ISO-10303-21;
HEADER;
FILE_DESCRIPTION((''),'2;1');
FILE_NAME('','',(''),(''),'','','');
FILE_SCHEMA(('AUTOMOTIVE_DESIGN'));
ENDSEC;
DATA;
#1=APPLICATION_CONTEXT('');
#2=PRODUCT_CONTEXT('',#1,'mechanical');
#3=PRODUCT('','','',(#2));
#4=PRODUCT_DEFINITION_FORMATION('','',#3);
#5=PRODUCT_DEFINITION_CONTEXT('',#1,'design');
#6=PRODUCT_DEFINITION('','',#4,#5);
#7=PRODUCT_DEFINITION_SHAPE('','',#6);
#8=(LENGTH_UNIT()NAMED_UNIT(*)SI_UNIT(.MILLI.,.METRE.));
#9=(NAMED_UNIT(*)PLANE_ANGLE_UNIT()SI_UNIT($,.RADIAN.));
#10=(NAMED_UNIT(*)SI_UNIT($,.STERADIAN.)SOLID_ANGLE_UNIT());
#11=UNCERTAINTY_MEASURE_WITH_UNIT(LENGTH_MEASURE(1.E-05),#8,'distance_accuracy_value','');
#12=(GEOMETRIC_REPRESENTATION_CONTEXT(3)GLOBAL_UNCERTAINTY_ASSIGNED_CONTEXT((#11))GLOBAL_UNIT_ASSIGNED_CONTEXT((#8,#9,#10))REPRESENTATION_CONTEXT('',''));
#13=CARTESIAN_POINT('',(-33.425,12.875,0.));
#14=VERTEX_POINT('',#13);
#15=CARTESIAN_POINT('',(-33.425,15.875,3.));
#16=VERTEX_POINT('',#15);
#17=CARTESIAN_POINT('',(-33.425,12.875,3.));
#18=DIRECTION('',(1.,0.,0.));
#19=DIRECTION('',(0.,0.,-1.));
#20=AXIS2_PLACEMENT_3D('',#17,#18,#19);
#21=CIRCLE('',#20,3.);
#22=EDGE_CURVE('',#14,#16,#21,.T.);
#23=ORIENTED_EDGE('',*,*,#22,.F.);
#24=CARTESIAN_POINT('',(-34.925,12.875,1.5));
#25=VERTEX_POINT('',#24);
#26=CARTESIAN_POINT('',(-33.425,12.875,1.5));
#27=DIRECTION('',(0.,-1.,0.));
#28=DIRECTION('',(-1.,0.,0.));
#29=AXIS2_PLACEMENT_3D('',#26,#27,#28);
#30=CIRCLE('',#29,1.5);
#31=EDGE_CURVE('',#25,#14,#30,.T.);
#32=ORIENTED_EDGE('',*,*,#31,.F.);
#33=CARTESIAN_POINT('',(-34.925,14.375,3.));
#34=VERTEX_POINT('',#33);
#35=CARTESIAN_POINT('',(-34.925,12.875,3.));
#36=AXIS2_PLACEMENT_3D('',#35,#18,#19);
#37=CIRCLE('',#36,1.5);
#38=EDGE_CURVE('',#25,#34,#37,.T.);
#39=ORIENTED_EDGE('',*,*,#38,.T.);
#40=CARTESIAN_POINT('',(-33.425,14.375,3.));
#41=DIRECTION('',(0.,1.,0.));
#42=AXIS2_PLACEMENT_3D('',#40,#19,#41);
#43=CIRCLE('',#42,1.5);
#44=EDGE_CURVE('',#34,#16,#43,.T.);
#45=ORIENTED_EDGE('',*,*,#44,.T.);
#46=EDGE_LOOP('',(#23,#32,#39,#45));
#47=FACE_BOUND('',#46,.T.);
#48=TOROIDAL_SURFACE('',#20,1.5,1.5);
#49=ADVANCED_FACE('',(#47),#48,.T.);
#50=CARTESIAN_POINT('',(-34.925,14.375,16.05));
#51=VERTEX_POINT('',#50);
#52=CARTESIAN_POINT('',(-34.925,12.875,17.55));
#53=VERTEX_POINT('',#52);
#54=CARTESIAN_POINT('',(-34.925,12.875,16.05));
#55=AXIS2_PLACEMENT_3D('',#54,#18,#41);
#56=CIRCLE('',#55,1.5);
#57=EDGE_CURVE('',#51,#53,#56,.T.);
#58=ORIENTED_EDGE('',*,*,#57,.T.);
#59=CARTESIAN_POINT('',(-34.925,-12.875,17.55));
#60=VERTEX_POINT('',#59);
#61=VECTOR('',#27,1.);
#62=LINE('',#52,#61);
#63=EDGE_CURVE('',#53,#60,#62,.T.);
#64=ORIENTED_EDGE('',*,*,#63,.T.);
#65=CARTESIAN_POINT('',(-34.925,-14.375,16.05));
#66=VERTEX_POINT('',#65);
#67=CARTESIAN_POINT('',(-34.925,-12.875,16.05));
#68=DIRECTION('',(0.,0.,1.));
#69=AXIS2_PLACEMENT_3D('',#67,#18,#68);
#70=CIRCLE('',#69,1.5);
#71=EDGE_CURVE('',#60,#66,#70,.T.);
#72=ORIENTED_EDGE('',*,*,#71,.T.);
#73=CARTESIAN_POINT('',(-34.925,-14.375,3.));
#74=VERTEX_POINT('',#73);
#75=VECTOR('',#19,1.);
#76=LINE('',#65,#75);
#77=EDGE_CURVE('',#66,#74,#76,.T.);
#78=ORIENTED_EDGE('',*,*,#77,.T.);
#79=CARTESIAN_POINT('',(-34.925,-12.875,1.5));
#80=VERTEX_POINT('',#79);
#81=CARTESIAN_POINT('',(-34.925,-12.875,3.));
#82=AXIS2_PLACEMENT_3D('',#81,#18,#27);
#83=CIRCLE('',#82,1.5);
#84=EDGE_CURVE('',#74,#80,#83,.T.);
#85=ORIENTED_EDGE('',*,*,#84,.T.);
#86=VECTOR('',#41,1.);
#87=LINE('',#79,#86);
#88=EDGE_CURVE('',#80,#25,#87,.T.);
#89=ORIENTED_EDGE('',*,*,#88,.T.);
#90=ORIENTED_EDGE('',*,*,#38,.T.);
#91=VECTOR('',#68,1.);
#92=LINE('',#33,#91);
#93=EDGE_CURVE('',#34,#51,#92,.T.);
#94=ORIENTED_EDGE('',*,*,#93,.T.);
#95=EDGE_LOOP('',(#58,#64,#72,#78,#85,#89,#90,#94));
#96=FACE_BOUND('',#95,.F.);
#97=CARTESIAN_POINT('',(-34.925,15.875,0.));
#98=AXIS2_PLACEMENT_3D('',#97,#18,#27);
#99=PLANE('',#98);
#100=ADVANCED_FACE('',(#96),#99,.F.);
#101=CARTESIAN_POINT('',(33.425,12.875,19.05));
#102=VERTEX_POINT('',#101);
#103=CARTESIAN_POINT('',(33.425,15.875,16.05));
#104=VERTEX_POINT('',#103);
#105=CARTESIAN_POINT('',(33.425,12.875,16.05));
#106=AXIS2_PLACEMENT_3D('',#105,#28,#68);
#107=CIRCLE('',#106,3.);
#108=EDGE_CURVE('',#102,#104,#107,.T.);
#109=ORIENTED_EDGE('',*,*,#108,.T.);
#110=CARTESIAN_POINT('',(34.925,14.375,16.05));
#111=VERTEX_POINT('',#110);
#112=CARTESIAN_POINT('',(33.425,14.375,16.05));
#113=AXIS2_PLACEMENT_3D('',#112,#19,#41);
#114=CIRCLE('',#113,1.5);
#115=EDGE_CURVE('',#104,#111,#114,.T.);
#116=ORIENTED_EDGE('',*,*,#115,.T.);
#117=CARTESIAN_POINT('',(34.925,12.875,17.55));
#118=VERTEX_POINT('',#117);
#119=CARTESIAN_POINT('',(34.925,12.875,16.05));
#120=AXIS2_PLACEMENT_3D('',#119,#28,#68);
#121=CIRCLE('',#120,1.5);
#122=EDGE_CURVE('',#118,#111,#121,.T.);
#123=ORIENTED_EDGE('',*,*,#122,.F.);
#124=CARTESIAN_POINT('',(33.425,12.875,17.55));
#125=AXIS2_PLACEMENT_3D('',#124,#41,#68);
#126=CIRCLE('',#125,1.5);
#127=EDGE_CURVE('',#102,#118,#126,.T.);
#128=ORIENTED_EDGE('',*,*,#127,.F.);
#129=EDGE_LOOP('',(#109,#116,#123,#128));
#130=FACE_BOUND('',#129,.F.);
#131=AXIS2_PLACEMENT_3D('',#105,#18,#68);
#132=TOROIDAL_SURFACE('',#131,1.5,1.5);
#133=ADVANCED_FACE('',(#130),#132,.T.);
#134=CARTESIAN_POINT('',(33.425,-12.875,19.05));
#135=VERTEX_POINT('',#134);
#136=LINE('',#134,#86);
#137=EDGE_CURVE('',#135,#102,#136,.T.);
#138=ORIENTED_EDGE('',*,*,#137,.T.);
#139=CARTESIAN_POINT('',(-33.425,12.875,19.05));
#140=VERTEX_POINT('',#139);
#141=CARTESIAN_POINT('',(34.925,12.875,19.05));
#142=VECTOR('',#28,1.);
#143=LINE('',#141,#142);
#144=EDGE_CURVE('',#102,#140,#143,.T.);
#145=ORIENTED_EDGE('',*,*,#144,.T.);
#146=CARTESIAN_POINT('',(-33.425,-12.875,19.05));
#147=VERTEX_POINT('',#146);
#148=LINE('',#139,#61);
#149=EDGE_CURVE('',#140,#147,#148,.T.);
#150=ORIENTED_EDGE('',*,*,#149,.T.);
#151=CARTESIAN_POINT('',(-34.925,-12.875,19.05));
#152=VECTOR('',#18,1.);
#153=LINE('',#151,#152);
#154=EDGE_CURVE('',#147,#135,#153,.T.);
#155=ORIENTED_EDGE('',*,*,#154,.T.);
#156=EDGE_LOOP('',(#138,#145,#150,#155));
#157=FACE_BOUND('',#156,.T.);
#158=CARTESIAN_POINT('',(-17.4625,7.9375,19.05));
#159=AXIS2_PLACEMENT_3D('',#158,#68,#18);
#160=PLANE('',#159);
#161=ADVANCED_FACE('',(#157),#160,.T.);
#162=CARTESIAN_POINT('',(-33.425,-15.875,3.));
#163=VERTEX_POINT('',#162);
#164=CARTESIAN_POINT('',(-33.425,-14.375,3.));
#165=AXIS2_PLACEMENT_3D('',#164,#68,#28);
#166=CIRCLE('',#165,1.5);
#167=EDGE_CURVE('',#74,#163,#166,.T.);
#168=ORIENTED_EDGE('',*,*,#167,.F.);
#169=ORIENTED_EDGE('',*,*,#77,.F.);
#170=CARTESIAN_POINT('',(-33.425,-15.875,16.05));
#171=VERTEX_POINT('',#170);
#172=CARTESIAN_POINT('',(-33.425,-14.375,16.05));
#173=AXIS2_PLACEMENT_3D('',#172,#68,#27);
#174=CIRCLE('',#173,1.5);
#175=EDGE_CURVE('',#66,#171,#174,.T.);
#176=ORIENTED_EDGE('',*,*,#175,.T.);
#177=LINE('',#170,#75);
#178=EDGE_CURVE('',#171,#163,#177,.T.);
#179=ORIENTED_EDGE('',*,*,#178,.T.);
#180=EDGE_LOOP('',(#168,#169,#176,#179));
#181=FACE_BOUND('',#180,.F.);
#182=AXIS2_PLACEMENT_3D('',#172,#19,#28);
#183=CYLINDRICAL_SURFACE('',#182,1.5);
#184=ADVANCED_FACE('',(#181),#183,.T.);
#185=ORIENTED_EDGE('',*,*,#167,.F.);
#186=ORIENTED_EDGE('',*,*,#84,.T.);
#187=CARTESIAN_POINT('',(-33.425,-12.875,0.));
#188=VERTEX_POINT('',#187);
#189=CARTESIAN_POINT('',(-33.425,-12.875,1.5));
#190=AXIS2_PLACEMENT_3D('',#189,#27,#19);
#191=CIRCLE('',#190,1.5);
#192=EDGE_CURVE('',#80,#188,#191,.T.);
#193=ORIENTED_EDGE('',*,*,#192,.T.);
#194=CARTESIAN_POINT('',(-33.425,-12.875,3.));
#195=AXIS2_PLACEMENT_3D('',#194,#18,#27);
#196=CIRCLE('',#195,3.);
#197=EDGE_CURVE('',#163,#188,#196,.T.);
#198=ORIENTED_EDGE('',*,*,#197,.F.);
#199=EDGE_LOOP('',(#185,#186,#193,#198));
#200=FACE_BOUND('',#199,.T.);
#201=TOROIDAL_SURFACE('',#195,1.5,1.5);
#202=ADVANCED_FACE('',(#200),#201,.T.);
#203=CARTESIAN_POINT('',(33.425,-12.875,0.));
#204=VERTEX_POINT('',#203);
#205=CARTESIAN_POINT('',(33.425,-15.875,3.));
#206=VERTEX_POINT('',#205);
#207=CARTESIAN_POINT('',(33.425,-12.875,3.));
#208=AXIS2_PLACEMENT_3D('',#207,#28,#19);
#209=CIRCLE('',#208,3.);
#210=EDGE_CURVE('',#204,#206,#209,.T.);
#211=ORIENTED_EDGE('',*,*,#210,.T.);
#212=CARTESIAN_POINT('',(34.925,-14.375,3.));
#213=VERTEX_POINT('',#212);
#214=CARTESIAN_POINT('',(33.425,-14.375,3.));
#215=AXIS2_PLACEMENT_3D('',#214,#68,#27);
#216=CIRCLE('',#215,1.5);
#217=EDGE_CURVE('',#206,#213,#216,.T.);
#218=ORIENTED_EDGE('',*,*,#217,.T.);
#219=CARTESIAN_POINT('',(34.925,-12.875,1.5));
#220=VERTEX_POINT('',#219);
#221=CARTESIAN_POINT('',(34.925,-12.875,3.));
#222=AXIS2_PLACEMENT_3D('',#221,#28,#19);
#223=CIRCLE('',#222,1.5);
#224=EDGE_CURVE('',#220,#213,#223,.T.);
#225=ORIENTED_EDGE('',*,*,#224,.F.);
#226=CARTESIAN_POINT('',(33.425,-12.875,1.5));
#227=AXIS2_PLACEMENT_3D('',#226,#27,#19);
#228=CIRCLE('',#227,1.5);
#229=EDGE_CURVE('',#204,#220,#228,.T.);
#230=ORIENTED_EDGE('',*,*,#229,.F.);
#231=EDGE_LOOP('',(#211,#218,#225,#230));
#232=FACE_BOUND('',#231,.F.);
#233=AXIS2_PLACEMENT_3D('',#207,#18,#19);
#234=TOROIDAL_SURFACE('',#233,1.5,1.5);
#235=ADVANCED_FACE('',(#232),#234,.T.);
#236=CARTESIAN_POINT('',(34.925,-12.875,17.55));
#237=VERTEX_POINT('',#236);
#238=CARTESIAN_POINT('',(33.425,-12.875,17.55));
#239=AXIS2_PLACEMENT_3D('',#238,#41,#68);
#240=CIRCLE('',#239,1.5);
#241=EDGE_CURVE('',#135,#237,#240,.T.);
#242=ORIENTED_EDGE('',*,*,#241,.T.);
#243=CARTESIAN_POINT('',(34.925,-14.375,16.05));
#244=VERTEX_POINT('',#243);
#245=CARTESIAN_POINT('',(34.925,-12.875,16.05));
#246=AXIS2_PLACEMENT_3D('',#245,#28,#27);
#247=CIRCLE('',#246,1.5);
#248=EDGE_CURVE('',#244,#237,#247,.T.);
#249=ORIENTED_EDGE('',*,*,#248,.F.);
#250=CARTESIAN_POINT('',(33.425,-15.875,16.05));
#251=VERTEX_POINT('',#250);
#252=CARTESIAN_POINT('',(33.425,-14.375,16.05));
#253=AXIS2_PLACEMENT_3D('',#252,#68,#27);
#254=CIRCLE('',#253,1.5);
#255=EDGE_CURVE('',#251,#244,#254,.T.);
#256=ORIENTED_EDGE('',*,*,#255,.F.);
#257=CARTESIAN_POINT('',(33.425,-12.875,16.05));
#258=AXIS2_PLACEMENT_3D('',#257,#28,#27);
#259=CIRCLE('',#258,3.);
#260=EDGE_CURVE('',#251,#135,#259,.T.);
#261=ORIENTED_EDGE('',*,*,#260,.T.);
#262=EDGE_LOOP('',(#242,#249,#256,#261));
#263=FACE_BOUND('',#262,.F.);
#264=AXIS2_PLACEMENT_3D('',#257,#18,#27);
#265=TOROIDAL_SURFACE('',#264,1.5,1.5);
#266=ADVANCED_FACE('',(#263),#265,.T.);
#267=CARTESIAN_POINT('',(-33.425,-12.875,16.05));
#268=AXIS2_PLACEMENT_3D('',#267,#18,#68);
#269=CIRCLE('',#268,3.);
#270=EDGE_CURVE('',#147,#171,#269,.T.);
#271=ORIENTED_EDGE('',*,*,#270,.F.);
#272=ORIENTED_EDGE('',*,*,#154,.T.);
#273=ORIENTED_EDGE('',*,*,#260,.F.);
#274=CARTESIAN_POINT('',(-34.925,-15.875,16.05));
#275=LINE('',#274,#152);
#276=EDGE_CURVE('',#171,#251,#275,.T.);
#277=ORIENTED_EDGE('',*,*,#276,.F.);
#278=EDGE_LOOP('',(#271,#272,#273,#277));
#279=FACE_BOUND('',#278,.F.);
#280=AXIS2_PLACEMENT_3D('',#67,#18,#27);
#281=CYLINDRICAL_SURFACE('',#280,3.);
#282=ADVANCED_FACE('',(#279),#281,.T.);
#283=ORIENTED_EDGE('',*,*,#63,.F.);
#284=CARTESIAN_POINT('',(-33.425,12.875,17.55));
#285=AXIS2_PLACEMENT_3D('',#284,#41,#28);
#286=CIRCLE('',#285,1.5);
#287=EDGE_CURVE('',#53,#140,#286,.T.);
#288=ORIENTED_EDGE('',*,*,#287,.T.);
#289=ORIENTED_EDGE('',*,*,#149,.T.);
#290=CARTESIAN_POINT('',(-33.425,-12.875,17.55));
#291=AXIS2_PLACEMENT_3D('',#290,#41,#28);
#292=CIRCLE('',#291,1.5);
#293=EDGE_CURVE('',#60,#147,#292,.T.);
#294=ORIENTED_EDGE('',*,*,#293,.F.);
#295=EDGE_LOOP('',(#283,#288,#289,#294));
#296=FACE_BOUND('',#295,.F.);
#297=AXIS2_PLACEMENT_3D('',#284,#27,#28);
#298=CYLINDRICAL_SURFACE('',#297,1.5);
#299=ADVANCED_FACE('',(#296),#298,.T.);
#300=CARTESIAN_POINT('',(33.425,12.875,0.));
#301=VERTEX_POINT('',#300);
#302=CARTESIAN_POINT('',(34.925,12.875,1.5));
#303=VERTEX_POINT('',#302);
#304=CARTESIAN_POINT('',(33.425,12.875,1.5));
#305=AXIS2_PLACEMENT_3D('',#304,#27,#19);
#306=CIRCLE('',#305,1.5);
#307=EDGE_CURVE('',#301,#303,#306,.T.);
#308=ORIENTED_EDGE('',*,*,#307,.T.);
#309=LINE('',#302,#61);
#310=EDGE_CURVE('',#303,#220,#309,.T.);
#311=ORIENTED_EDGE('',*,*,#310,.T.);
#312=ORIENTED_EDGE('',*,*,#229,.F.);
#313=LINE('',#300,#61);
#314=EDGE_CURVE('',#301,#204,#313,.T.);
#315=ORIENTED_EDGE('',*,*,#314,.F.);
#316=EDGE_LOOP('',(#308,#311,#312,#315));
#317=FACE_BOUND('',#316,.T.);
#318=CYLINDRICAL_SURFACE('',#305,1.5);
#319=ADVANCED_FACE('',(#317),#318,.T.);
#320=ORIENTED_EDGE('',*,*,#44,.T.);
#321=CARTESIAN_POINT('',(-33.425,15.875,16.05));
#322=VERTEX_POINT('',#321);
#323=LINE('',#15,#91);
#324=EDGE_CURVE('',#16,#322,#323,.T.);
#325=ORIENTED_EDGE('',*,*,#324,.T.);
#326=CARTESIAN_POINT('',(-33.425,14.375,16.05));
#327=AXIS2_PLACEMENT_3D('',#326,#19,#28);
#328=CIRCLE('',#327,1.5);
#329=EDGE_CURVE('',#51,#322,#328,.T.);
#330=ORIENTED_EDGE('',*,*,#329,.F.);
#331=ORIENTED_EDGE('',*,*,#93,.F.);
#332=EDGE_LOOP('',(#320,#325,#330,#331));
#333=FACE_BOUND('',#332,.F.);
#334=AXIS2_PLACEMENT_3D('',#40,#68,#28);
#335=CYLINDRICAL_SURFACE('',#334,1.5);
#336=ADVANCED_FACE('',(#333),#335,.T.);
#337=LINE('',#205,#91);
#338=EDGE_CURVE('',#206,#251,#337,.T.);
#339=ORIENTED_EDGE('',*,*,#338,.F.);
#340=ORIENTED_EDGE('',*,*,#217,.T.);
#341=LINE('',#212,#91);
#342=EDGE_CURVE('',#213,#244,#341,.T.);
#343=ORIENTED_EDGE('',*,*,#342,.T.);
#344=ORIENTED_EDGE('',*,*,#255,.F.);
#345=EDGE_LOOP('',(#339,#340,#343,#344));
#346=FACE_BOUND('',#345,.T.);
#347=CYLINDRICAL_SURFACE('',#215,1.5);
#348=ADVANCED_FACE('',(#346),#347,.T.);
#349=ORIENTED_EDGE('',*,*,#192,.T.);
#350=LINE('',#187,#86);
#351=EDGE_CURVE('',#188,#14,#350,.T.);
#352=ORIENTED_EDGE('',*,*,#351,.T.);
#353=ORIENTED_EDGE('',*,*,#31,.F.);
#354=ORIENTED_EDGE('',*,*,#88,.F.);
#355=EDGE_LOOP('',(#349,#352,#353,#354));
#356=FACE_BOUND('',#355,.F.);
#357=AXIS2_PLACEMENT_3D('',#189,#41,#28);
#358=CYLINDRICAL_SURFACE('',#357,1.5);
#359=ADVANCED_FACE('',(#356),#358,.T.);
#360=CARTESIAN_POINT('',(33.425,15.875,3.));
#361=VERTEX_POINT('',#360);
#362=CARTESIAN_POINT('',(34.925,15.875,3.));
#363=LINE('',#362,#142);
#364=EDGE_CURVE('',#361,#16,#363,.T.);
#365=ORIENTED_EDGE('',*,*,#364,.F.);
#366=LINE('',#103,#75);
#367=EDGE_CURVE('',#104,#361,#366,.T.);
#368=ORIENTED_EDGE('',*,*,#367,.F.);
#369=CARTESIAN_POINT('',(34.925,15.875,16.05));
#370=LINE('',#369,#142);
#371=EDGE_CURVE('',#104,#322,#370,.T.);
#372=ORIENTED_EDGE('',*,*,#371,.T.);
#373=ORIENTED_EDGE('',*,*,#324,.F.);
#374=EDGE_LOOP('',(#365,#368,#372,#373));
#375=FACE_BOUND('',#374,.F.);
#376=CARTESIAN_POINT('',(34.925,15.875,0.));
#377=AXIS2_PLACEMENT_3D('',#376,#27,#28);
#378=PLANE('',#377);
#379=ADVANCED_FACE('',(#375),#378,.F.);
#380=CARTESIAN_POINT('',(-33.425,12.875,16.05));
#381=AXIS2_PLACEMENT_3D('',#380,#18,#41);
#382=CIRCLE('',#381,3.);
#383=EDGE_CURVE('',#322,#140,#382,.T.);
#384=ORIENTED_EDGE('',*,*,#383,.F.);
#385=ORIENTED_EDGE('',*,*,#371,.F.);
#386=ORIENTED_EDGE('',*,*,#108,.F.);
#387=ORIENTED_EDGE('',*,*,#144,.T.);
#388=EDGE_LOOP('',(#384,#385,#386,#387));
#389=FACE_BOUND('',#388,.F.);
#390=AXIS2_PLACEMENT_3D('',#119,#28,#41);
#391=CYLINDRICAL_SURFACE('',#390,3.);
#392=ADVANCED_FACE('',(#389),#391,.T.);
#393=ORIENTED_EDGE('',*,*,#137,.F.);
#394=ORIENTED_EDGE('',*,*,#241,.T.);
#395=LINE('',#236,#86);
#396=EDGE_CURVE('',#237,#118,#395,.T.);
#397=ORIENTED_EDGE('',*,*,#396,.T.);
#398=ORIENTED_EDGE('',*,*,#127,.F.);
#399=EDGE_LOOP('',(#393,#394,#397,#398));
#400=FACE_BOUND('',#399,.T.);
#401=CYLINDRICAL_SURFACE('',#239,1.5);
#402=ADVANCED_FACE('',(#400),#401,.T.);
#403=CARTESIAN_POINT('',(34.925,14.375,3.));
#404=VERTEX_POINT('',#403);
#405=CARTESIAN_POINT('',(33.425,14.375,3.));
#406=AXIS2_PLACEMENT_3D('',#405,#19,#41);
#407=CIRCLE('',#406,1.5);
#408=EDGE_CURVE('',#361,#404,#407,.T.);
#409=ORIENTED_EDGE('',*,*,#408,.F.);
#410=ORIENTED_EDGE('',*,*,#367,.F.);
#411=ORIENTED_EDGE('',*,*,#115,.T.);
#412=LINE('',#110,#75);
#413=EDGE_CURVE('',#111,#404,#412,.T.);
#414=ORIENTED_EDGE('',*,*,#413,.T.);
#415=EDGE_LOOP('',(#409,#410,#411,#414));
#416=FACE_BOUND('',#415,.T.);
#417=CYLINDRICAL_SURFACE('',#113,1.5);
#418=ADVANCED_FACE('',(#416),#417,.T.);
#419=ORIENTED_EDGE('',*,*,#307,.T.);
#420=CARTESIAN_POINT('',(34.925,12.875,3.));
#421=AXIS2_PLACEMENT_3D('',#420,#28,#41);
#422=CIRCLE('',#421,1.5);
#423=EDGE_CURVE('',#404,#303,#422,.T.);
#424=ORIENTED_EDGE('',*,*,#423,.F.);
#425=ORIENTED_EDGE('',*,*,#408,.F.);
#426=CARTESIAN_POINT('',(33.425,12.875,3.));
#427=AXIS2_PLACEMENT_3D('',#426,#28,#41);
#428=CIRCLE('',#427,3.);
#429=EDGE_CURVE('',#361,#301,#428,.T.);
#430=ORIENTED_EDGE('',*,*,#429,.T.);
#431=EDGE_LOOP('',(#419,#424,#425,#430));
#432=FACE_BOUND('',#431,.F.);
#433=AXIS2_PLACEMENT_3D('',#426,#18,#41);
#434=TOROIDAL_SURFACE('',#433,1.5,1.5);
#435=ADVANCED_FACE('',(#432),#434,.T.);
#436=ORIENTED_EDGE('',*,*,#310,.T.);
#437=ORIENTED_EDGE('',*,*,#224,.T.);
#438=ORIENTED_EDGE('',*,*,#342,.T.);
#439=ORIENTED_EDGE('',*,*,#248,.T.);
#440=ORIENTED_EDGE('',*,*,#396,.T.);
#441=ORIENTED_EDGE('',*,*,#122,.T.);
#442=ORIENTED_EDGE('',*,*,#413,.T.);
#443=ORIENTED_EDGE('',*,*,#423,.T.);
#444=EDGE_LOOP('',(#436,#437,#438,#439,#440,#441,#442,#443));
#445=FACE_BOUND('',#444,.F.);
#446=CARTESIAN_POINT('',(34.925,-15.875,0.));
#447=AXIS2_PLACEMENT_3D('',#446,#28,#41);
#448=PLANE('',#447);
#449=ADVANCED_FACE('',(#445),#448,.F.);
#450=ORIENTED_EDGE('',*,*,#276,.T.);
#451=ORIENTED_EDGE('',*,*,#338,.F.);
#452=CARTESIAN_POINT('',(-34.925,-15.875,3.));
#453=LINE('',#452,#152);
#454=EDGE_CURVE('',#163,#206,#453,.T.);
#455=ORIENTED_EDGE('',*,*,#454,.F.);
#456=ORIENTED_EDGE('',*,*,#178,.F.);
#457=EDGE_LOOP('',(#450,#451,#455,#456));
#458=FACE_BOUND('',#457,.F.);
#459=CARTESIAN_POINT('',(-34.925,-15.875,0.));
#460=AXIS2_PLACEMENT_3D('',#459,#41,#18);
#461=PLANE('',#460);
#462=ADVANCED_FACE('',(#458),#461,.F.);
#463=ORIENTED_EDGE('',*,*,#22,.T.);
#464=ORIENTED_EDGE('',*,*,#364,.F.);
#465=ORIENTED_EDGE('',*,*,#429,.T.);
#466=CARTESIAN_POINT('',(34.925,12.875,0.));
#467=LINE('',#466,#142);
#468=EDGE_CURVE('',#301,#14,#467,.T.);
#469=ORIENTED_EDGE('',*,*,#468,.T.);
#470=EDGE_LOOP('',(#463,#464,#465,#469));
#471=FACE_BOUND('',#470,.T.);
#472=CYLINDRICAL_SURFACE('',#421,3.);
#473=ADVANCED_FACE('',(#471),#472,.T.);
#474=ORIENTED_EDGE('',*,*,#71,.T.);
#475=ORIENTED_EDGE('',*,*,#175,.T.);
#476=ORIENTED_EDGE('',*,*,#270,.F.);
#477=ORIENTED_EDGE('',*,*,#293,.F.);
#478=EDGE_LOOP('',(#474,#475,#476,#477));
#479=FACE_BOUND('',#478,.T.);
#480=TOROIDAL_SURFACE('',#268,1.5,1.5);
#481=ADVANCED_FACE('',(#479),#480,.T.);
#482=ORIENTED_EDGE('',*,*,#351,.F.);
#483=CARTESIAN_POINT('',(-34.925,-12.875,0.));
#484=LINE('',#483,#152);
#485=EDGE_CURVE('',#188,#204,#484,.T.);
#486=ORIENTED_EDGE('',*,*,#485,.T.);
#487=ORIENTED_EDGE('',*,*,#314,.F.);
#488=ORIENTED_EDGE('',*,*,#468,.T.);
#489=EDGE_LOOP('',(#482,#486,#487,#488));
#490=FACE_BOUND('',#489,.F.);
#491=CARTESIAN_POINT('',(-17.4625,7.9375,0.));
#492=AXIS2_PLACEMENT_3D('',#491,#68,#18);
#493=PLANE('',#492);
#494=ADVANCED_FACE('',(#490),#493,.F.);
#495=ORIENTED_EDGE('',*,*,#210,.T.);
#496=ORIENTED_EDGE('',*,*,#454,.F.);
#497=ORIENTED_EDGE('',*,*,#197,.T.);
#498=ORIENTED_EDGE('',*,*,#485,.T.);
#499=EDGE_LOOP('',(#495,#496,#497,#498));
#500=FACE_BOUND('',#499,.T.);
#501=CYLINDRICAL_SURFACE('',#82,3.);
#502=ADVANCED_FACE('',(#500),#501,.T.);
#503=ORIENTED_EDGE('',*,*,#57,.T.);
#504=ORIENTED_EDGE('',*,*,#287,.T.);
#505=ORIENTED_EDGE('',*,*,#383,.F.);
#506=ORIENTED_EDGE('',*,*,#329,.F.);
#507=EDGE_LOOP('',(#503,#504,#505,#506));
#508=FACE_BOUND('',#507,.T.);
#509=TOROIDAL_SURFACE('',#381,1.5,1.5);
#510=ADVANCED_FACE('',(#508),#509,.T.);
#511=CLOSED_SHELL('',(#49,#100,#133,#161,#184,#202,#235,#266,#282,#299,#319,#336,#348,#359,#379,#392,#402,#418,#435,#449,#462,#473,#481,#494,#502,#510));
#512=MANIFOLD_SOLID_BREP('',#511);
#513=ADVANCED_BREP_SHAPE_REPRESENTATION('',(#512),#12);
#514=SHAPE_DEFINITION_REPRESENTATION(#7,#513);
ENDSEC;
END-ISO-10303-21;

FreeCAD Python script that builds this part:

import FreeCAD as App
import Part
import Sketcher
Q = App.Units.Quantity


def edges_at(feature, points):
    """Names of the edges that pass closest to the given points."""
    edges = feature.Shape.Edges
    near = lambda p: min(range(len(edges)), key=lambda i: edges[i].distToShape(Part.Vertex(*p))[0])
    return sorted({f"Edge{near(p) + 1}" for p in points})

doc = App.newDocument("Part")
body = doc.addObject("PartDesign::Body", "Body")

sketch1 = body.newObject("Sketcher::SketchObject", "Sketch")
sketch1.AttachmentSupport = (doc.getObject("XY_Plane"), [""])
sketch1.MapMode = "FlatFace"
sketch1.addGeometry([
    Part.LineSegment(App.Vector(-35, 16, 0), App.Vector(-35, -16, 0)),
    Part.LineSegment(App.Vector(-35, -16, 0), App.Vector(35, -16, 0)),
    Part.LineSegment(App.Vector(35, -16, 0), App.Vector(35, 16, 0)),
    Part.LineSegment(App.Vector(35, 16, 0), App.Vector(-35, 16, 0)),
], False)
sketch1.addConstraint([
    Sketcher.Constraint("Coincident", 0, 2, 1, 1),
    Sketcher.Constraint("Coincident", 1, 2, 2, 1),
    Sketcher.Constraint("Coincident", 2, 2, 3, 1),
    Sketcher.Constraint("Coincident", 3, 2, 0, 1),
    Sketcher.Constraint("Vertical", 0),
    Sketcher.Constraint("Horizontal", 1),
    Sketcher.Constraint("Vertical", 2),
    Sketcher.Constraint("Horizontal", 3),
    Sketcher.Constraint("Symmetric", 0, 2, 2, 2, -1, 1),
    Sketcher.Constraint("DistanceX", 1, 1, 1, 2, Q("2.75 in")),
    Sketcher.Constraint("DistanceY", 0, 2, 0, 1, Q("1.25 in")),
])
pad1 = body.newObject("PartDesign::Pad", "Pad")
pad1.Profile = sketch1
pad1.Length = Q("0.75 in")
doc.recompute()

fillet = body.newObject("PartDesign::Fillet", "Fillet")
fillet.Base = (pad1, edges_at(pad1, [
    (0, -15.875, 19.05),
    (0, -15.875, 0),
    (0, 15.875, 19.05),
    (0, 15.875, 0),
]))
fillet.Radius = 3
doc.recompute()

fillet2 = body.newObject("PartDesign::Fillet", "Fillet001")
fillet2.Base = (fillet, edges_at(fillet, [(-34.925, 0, 19.05), (34.925, 0, 19.05)]))
fillet2.Radius = 1.5

doc.recompute()
